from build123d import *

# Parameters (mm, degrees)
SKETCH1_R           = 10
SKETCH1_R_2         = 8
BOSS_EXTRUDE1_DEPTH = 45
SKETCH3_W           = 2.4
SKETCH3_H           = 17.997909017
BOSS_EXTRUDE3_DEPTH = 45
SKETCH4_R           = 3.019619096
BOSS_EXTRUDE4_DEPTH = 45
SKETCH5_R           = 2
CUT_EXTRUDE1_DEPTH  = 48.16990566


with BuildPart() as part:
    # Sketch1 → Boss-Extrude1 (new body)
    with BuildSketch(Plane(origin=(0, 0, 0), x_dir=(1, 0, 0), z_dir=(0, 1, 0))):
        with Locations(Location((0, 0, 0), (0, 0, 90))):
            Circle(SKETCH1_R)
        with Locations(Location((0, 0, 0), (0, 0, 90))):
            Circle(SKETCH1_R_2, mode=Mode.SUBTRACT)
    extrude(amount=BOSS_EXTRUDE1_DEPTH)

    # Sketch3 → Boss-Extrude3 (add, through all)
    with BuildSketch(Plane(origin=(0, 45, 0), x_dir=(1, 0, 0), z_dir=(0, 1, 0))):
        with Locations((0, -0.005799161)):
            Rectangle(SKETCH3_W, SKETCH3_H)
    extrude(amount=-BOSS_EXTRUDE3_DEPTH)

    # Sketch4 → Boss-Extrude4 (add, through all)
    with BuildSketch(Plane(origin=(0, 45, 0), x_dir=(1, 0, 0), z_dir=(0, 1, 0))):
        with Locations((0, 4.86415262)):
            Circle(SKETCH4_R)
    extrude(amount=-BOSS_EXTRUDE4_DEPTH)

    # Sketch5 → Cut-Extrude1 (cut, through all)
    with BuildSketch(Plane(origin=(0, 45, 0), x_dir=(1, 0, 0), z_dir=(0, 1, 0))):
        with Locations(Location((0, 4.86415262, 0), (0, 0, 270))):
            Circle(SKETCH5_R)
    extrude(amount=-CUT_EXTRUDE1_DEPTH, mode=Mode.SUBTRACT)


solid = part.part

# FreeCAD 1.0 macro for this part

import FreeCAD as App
import Part
import Sketcher
from FreeCAD import Vector
Q = App.Units.Quantity

doc = App.newDocument("Part")
params = doc.addObject("Spreadsheet::Sheet", "Params")
for row, (alias, value) in enumerate([
    ("sketch1_diameter", "20 mm"),
    ("sketch1_diameter2", "16 mm"),
    ("pad1_length", "45 mm"),
    ("sketch2_width", "2.4 mm"),
    ("pad2_length", "45 mm"),
    ("sketch4_diameter", "4 mm"),
], start=1):
    params.set(f"A{row}", alias)
    params.set(f"B{row}", "=" + value)
    params.setAlias(f"B{row}", alias)

body = doc.addObject("PartDesign::Body", "Body")

sketch1 = body.newObject("Sketcher::SketchObject", "Sketch")
sketch1.AttachmentSupport = (doc.getObject("XZ_Plane"), [""])
sketch1.MapMode = "FlatFace"
sketch1.addGeometry(Part.Circle(Vector(0, 0, 0), Vector(0, 0, 1), 10), False)
sketch1.addGeometry(Part.Circle(Vector(0, 0, 0), Vector(0, 0, 1), 8), False)
sketch1.addConstraint(Sketcher.Constraint("Coincident", 0, 3, -1, 1))
sketch1.addConstraint(Sketcher.Constraint("Coincident", 1, 3, -1, 1))
sketch1.addConstraint(Sketcher.Constraint("Diameter", 0, Q("20 mm")))
sketch1.addConstraint(Sketcher.Constraint("Diameter", 1, Q("16 mm")))
sketch1.setExpression("Constraints[2]", "Params.sketch1_diameter")
sketch1.setExpression("Constraints[3]", "Params.sketch1_diameter2")
pad1 = body.newObject("PartDesign::Pad", "Pad")
pad1.Profile = sketch1
pad1.setExpression("Length", "Params.pad1_length")
pad1.Reversed = True

sketch2 = body.newObject("Sketcher::SketchObject", "Sketch001")
sketch2.AttachmentSupport = (doc.getObject("XZ_Plane"), [""])
sketch2.MapMode = "FlatFace"
sketch2.AttachmentOffset = App.Placement(Vector(0, 0, -45), App.Rotation())
sketch2.addGeometry(Part.LineSegment(Vector(-1.2, -9, 0), Vector(-1.2, 9, 0)), False)
sketch2.addGeometry(Part.LineSegment(Vector(-1.2, 9, 0), Vector(1.2, 9, 0)), False)
sketch2.addGeometry(Part.LineSegment(Vector(1.2, 9, 0), Vector(1.2, -9, 0)), False)
sketch2.addGeometry(Part.LineSegment(Vector(1.2, -9, 0), Vector(-1.2, -9, 0)), False)
sketch2.addConstraint(Sketcher.Constraint("Coincident", 0, 2, 1, 1))
sketch2.addConstraint(Sketcher.Constraint("Coincident", 1, 2, 2, 1))
sketch2.addConstraint(Sketcher.Constraint("Coincident", 2, 2, 3, 1))
sketch2.addConstraint(Sketcher.Constraint("Coincident", 3, 2, 0, 1))
sketch2.addConstraint(Sketcher.Constraint("Vertical", 0))
sketch2.addConstraint(Sketcher.Constraint("Horizontal", 1))
sketch2.addConstraint(Sketcher.Constraint("Vertical", 2))
sketch2.addConstraint(Sketcher.Constraint("Horizontal", 3))
sketch2.addConstraint(Sketcher.Constraint("DistanceX", 1, 1, 1, 2, Q("2.4 mm")))
sketch2.addConstraint(Sketcher.Constraint("DistanceX", 0, 2, -1, 1, Q("1.2 mm")))
sketch2.addConstraint(Sketcher.Constraint("DistanceY", 0, 1, 0, 2, Q("17.997909 mm")))
sketch2.addConstraint(Sketcher.Constraint("DistanceY", -1, 1, 0, 2, Q("9.004754 mm")))
sketch2.setExpression("Constraints[8]", "Params.sketch2_width")
pad2 = body.newObject("PartDesign::Pad", "Pad001")
pad2.Profile = sketch2
pad2.setExpression("Length", "Params.pad2_length")

sketch3 = body.newObject("Sketcher::SketchObject", "Sketch002")
sketch3.AttachmentSupport = (doc.getObject("XZ_Plane"), [""])
sketch3.MapMode = "FlatFace"
sketch3.AttachmentOffset = App.Placement(Vector(0, 0, -45), App.Rotation())
sketch3.addGeometry(Part.Circle(Vector(0, -4.9, 0), Vector(0, 0, 1), 3), False)
sketch3.addConstraint(Sketcher.Constraint("PointOnObject", 0, 3, -2))
sketch3.addConstraint(Sketcher.Constraint("Diameter", 0, Q("6.039238 mm")))
sketch3.addConstraint(Sketcher.Constraint("DistanceY", 0, 3, -1, 1, Q("4.864153 mm")))
pad3 = body.newObject("PartDesign::Pad", "Pad002")
pad3.Profile = sketch3
pad3.Type = "UpToLast"

sketch4 = body.newObject("Sketcher::SketchObject", "Sketch003")
sketch4.AttachmentSupport = (doc.getObject("XZ_Plane"), [""])
sketch4.MapMode = "FlatFace"
sketch4.AttachmentOffset = App.Placement(Vector(0, 0, -45), App.Rotation())
sketch4.addGeometry(Part.Circle(Vector(0, -4.9, 0), Vector(0, 0, 1), 2), False)
sketch4.addConstraint(Sketcher.Constraint("PointOnObject", 0, 3, -2))
sketch4.addConstraint(Sketcher.Constraint("Diameter", 0, Q("4 mm")))
sketch4.addConstraint(Sketcher.Constraint("DistanceY", 0, 3, -1, 1, Q("4.864153 mm")))
sketch4.setExpression("Constraints[1]", "Params.sketch4_diameter")
pocket1 = body.newObject("PartDesign::Pocket", "Pocket")
pocket1.Profile = sketch4
pocket1.Type = "ThroughAll"
pocket1.Reversed = True

doc.recompute()
